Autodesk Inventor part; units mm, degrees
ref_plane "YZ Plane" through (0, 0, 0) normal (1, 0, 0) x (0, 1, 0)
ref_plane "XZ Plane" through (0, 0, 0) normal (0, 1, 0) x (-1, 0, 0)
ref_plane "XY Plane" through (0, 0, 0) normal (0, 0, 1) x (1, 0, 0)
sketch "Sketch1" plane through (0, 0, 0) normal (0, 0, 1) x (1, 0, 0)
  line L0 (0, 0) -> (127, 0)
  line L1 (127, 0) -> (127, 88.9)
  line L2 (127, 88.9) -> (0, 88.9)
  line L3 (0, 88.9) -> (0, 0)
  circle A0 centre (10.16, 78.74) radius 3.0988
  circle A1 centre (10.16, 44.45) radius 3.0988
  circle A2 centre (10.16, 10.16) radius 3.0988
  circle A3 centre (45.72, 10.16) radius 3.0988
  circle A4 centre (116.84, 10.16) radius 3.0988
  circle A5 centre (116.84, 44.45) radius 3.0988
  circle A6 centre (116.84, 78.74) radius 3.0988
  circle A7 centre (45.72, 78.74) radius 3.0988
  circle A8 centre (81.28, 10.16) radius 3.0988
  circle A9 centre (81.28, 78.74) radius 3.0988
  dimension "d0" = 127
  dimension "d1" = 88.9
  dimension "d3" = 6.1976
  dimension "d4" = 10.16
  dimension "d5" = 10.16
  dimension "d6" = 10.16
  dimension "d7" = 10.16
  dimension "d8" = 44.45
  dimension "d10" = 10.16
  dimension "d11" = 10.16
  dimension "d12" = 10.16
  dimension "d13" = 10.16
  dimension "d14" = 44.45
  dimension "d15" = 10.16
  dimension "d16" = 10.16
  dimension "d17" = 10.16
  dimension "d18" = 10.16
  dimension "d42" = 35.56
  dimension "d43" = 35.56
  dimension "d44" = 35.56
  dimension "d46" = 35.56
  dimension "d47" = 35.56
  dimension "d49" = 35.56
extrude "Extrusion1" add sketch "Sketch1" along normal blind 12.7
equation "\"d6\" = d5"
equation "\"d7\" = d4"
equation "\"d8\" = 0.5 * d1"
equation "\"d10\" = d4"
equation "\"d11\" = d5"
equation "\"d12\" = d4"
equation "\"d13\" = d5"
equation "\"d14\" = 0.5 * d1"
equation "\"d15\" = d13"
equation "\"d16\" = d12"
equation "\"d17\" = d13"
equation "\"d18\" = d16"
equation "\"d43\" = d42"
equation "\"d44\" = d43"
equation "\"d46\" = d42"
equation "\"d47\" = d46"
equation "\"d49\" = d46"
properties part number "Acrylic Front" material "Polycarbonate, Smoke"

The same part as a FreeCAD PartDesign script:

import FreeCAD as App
import Part
import Sketcher
Q = App.Units.Quantity


def add_polygon(sketch, points):
    """Adds a closed chain of lines whose ends are joined by coincident constraints."""
    first, n = sketch.GeometryCount, len(points)
    for a, b in zip(points, points[1:] + points[:1]):
        sketch.addGeometry(Part.LineSegment(App.Vector(*a, 0), App.Vector(*b, 0)), False)
    for i in range(n):
        sketch.addConstraint(Sketcher.Constraint("Coincident", first + i, 2, first + (i + 1) % n, 1))

doc = App.newDocument("Part")
body = doc.addObject("PartDesign::Body", "Body")

# Sketch on XY plane
sketch1 = doc.addObject("Sketcher::SketchObject", "Sketch")
body.addObject(sketch1)
sketch1.AttachmentSupport = (doc.XY_Plane, [""])
sketch1.MapMode = "FlatFace"
add_polygon(sketch1, [(0, 88.9), (0, 0), (127, 0), (127, 88.9)])  # lines 0-3
sketch1.addGeometry(Part.Circle(App.Vector(10.2, 10.2, 0), App.Vector(0, 0, 1), 3.1), False)  # 4
sketch1.addGeometry(Part.Circle(App.Vector(45.7, 10.2, 0), App.Vector(0, 0, 1), 3.1), False)  # 5
sketch1.addGeometry(Part.Circle(App.Vector(81.3, 10.2, 0), App.Vector(0, 0, 1), 3.1), False)  # 6
sketch1.addGeometry(Part.Circle(App.Vector(116.8, 10.2, 0), App.Vector(0, 0, 1), 3.1), False)  # 7
sketch1.addGeometry(Part.Circle(App.Vector(10.2, 44.5, 0), App.Vector(0, 0, 1), 3.1), False)  # 8
sketch1.addGeometry(Part.Circle(App.Vector(10.2, 78.7, 0), App.Vector(0, 0, 1), 3.1), False)  # 9
sketch1.addGeometry(Part.Circle(App.Vector(45.7, 78.7, 0), App.Vector(0, 0, 1), 3.1), False)  # 10
sketch1.addGeometry(Part.Circle(App.Vector(116.8, 44.5, 0), App.Vector(0, 0, 1), 3.1), False)  # 11
sketch1.addGeometry(Part.Circle(App.Vector(81.3, 78.7, 0), App.Vector(0, 0, 1), 3.1), False)  # 12
sketch1.addGeometry(Part.Circle(App.Vector(116.8, 78.7, 0), App.Vector(0, 0, 1), 3.1), False)  # 13
sketch1.addConstraint(Sketcher.Constraint("Vertical", 0))
sketch1.addConstraint(Sketcher.Constraint("Horizontal", 1))
sketch1.addConstraint(Sketcher.Constraint("Vertical", 2))
sketch1.addConstraint(Sketcher.Constraint("Horizontal", 3))
sketch1.addConstraint(Sketcher.Constraint("Coincident", 0, 2, -1, 1))
sketch1.addConstraint(Sketcher.Constraint("Equal", 4, 5))
sketch1.addConstraint(Sketcher.Constraint("Equal", 5, 6))
sketch1.addConstraint(Sketcher.Constraint("Equal", 6, 7))
sketch1.addConstraint(Sketcher.Constraint("Equal", 7, 8))
sketch1.addConstraint(Sketcher.Constraint("Equal", 8, 9))
sketch1.addConstraint(Sketcher.Constraint("Equal", 9, 10))
sketch1.addConstraint(Sketcher.Constraint("Equal", 10, 11))
sketch1.addConstraint(Sketcher.Constraint("Equal", 11, 12))
sketch1.addConstraint(Sketcher.Constraint("Equal", 12, 13))
sketch1.addConstraint(Sketcher.Constraint("Horizontal", 4, 3, 5, 3))
sketch1.addConstraint(Sketcher.Constraint("Horizontal", 5, 3, 6, 3))
sketch1.addConstraint(Sketcher.Constraint("Horizontal", 6, 3, 7, 3))
sketch1.addConstraint(Sketcher.Constraint("Horizontal", 9, 3, 10, 3))
sketch1.addConstraint(Sketcher.Constraint("Horizontal", 8, 3, 11, 3))
sketch1.addConstraint(Sketcher.Constraint("Horizontal", 10, 3, 12, 3))
sketch1.addConstraint(Sketcher.Constraint("Horizontal", 12, 3, 13, 3))
sketch1.addConstraint(Sketcher.Constraint("Vertical", 4, 3, 8, 3))
sketch1.addConstraint(Sketcher.Constraint("Vertical", 8, 3, 9, 3))
sketch1.addConstraint(Sketcher.Constraint("Vertical", 5, 3, 10, 3))
sketch1.addConstraint(Sketcher.Constraint("Vertical", 7, 3, 11, 3))
sketch1.addConstraint(Sketcher.Constraint("Vertical", 6, 3, 12, 3))
sketch1.addConstraint(Sketcher.Constraint("Vertical", 11, 3, 13, 3))
sketch1.addConstraint(Sketcher.Constraint("DistanceX", 1, 1, 1, 2, Q("5 in")))
sketch1.addConstraint(Sketcher.Constraint("Diameter", 4, Q("0.244 in")))
sketch1.addConstraint(Sketcher.Constraint("DistanceY", 0, 2, 0, 1, Q("3.5 in")))
sketch1.addConstraint(Sketcher.Constraint("DistanceX", -1, 1, 4, 3, Q("0.4 in")))
sketch1.addConstraint(Sketcher.Constraint("DistanceY", -1, 1, 4, 3, Q("0.4 in")))
sketch1.addConstraint(Sketcher.Constraint("DistanceX", 4, 3, 5, 3, Q("1.4 in")))
sketch1.addConstraint(Sketcher.Constraint("DistanceX", 5, 3, 6, 3, Q("1.4 in")))
sketch1.addConstraint(Sketcher.Constraint("DistanceX", 6, 3, 7, 3, Q("1.4 in")))
sketch1.addConstraint(Sketcher.Constraint("DistanceY", 13, 3, 2, 2, Q("0.4 in")))
sketch1.addConstraint(Sketcher.Constraint("DistanceY", -1, 1, 8, 3, Q("1.75 in")))
pad1 = doc.addObject("PartDesign::Pad", "Pad")
body.addObject(pad1)
pad1.Profile = sketch1
pad1.Length = Q("0.5 in")

doc.recompute()
